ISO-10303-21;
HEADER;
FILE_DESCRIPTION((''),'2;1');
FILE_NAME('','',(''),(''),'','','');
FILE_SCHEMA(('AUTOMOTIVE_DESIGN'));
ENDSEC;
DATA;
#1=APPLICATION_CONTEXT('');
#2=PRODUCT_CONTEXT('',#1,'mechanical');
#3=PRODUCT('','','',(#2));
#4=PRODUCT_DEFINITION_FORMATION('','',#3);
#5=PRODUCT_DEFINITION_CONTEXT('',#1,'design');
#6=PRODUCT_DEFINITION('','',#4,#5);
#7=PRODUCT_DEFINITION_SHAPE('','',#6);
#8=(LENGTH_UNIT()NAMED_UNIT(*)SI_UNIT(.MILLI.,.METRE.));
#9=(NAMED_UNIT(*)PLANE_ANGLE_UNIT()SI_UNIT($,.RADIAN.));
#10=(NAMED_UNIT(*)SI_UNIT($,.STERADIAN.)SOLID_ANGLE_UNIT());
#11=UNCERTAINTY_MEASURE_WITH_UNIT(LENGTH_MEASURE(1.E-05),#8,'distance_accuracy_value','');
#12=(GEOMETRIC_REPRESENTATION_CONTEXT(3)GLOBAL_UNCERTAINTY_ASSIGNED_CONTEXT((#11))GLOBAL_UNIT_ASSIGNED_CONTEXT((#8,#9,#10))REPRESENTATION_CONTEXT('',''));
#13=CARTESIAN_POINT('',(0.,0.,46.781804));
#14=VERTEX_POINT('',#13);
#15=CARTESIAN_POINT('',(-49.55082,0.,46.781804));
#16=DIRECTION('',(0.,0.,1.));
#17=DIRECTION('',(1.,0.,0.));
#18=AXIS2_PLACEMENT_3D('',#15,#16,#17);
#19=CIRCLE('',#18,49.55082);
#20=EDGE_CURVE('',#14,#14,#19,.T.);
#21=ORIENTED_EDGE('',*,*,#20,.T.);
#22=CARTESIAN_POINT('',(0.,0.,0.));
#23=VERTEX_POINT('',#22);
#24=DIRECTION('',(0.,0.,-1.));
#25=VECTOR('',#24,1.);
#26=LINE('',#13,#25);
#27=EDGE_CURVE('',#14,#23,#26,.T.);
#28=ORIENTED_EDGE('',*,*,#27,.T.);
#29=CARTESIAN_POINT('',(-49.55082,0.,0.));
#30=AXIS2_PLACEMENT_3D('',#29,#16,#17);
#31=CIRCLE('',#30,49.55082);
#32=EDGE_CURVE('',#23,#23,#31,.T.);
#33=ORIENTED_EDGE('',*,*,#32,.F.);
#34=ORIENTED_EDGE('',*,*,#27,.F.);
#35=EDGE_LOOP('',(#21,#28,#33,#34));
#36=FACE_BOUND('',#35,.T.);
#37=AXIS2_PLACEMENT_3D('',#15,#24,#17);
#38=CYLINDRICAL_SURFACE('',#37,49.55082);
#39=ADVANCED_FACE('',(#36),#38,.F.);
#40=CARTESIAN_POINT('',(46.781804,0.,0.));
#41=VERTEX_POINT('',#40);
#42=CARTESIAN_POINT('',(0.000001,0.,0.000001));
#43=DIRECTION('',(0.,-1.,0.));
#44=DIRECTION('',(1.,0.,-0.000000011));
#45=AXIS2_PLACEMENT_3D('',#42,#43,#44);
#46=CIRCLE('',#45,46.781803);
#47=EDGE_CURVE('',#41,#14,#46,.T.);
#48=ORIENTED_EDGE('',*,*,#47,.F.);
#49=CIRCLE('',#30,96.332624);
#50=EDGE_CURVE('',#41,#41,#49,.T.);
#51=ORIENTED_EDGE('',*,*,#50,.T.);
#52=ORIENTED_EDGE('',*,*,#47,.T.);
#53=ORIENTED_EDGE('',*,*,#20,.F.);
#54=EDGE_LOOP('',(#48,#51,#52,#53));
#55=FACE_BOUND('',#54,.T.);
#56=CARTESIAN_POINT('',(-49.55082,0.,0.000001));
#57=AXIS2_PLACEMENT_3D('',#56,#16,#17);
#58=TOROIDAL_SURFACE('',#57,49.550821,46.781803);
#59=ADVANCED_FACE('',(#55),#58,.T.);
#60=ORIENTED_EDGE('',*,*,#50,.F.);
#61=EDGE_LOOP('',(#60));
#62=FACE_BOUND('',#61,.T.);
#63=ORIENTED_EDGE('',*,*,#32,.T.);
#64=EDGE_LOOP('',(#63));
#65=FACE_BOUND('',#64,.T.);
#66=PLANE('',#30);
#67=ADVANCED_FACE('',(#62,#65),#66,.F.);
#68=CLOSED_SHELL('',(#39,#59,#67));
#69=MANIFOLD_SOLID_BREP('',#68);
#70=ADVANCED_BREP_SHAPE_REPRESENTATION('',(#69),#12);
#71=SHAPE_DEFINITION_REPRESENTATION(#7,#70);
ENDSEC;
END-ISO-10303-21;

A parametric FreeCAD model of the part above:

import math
import FreeCAD as App
import Part
import Sketcher
from FreeCAD import Vector

doc = App.newDocument("Part")
body = doc.addObject("PartDesign::Body", "Body")

sketch1 = body.newObject("Sketcher::SketchObject", "Sketch")
sketch1.AttachmentSupport = (doc.getObject("XZ_Plane"), [""])
sketch1.MapMode = "FlatFace"
sketch1.addGeometry(Part.ArcOfCircle(Part.Circle(Vector(0, 0, 0), Vector(0, 0, 1), 47), math.radians(0), math.radians(90)), False)
sketch1.addGeometry(Part.LineSegment(Vector(0, 47, 0), Vector(0, 0, 0)), False)
sketch1.addGeometry(Part.LineSegment(Vector(0, 0, 0), Vector(47, 0, 0)), False)
sketch1.addGeometry(Part.LineSegment(Vector(-50, 0, 0), Vector(-50, 47, 0)), True)
sketch1.addConstraint(Sketcher.Constraint("Coincident", 0, 2, 1, 1))
sketch1.addConstraint(Sketcher.Constraint("Coincident", 1, 2, 2, 1))
sketch1.addConstraint(Sketcher.Constraint("Coincident", 2, 2, 0, 1))
sketch1.addConstraint(Sketcher.Constraint("Vertical", 1))
sketch1.addConstraint(Sketcher.Constraint("Horizontal", 2))
sketch1.addConstraint(Sketcher.Constraint("Vertical", 3))
sketch1.addConstraint(Sketcher.Constraint("Coincident", 0, 3, -1, 1))
sketch1.addConstraint(Sketcher.Constraint("Coincident", 1, 2, -1, 1))
sketch1.addConstraint(Sketcher.Constraint("PointOnObject", 3, 1, -1))
sketch1.addConstraint(Sketcher.Constraint("Horizontal", 0, 2, 3, 2))
sketch1.addConstraint(Sketcher.Constraint("Radius", 0, 46.781803))
sketch1.addConstraint(Sketcher.Constraint("DistanceX", 3, 1, -1, 1, 49.55082))
revolution = body.newObject("PartDesign::Revolution", "Revolution")
revolution.Profile = sketch1
revolution.ReferenceAxis = (sketch1, ["Axis0"])
revolution.Angle = 360

doc.recompute()
